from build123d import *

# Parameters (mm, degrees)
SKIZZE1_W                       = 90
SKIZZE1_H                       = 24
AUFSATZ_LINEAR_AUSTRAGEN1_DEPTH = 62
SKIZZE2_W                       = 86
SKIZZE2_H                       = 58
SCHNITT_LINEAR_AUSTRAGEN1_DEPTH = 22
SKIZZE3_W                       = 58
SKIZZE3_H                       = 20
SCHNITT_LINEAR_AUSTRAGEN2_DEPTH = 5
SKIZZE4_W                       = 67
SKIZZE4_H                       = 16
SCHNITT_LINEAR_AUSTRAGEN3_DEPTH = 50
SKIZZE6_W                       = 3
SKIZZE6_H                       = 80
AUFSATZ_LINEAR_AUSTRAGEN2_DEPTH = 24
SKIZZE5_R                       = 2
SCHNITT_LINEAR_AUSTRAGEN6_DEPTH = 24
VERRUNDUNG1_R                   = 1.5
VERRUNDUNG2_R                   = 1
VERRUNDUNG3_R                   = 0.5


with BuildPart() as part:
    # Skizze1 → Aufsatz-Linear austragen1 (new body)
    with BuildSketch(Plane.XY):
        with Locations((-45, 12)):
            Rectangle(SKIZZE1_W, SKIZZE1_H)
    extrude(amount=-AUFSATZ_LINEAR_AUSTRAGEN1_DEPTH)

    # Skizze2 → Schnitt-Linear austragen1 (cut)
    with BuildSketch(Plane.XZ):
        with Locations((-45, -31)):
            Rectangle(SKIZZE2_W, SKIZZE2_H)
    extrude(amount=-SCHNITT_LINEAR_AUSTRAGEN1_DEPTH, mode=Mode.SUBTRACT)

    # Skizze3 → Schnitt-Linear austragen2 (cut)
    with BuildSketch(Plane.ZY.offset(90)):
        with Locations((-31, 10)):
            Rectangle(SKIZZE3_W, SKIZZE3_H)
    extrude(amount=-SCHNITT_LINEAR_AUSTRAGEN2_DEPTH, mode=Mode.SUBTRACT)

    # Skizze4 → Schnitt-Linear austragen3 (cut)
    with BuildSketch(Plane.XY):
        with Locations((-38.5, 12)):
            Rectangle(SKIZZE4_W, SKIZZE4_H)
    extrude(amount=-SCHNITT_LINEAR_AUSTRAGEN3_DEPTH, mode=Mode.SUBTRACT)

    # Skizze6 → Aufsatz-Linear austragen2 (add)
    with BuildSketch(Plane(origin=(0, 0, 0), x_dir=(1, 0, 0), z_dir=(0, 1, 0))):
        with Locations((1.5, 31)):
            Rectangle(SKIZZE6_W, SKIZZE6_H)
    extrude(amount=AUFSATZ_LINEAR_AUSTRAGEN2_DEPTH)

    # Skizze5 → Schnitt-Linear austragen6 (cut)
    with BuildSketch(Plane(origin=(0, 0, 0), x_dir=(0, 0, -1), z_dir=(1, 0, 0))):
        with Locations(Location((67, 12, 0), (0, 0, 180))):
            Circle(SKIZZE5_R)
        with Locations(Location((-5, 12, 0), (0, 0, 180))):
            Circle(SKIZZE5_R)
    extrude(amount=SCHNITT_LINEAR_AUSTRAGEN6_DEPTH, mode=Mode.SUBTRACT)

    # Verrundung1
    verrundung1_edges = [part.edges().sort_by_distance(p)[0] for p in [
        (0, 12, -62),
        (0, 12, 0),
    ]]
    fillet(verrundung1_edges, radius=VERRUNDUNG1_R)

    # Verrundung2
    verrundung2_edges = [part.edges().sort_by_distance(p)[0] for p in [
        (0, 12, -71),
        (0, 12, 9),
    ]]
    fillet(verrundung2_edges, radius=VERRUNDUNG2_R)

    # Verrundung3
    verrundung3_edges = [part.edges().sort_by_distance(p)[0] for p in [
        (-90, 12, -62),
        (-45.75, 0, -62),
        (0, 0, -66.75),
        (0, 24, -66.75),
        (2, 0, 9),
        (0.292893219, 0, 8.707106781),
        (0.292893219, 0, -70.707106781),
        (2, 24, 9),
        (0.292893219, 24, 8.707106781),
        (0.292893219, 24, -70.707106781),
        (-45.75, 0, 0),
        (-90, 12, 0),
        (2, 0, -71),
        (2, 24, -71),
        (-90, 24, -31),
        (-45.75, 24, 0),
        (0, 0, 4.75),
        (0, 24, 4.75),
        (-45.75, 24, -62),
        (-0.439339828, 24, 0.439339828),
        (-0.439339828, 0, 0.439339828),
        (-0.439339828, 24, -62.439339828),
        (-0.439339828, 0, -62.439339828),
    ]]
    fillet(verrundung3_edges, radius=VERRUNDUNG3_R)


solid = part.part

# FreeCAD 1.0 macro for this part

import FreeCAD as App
import Part
import Sketcher


def edges_at(feature, points):
    """Names of the edges that pass closest to the given points."""
    edges = feature.Shape.Edges
    near = lambda p: min(range(len(edges)), key=lambda i: edges[i].distToShape(Part.Vertex(*p))[0])
    return sorted({f"Edge{near(p) + 1}" for p in points})

doc = App.newDocument("Part")
body = doc.addObject("PartDesign::Body", "Body")

sketch1 = doc.addObject("Sketcher::SketchObject", "Sketch")
body.addObject(sketch1)
sketch1.AttachmentSupport = (doc.XY_Plane, [""])
sketch1.MapMode = "FlatFace"
sketch1.addGeometry(Part.LineSegment(App.Vector(-90, 24, 0), App.Vector(-90, 0, 0)), False)
sketch1.addGeometry(Part.LineSegment(App.Vector(-90, 0, 0), App.Vector(0, 0, 0)), False)
sketch1.addGeometry(Part.LineSegment(App.Vector(0, 0, 0), App.Vector(0, 24, 0)), False)
sketch1.addGeometry(Part.LineSegment(App.Vector(0, 24, 0), App.Vector(-90, 24, 0)), False)
sketch1.addConstraint(Sketcher.Constraint("Coincident", 0, 2, 1, 1))
sketch1.addConstraint(Sketcher.Constraint("Coincident", 1, 2, 2, 1))
sketch1.addConstraint(Sketcher.Constraint("Coincident", 2, 2, 3, 1))
sketch1.addConstraint(Sketcher.Constraint("Coincident", 3, 2, 0, 1))
sketch1.addConstraint(Sketcher.Constraint("Vertical", 0))
sketch1.addConstraint(Sketcher.Constraint("Horizontal", 1))
sketch1.addConstraint(Sketcher.Constraint("Vertical", 2))
sketch1.addConstraint(Sketcher.Constraint("Horizontal", 3))
sketch1.addConstraint(Sketcher.Constraint("Coincident", 1, 2, -1, 1))
sketch1.addConstraint(Sketcher.Constraint("DistanceX", 1, 1, 1, 2, 90.0))
sketch1.addConstraint(Sketcher.Constraint("DistanceY", 0, 2, 0, 1, 24.0))
pad1 = doc.addObject("PartDesign::Pad", "Pad")
body.addObject(pad1)
pad1.Profile = sketch1
pad1.Length = 62
pad1.Reversed = True

sketch2 = doc.addObject("Sketcher::SketchObject", "Sketch001")
body.addObject(sketch2)
sketch2.AttachmentSupport = (doc.XZ_Plane, [""])
sketch2.MapMode = "FlatFace"
sketch2.addGeometry(Part.LineSegment(App.Vector(-88, -2, 0), App.Vector(-88, -60, 0)), False)
sketch2.addGeometry(Part.LineSegment(App.Vector(-88, -60, 0), App.Vector(-2, -60, 0)), False)
sketch2.addGeometry(Part.LineSegment(App.Vector(-2, -60, 0), App.Vector(-2, -2, 0)), False)
sketch2.addGeometry(Part.LineSegment(App.Vector(-2, -2, 0), App.Vector(-88, -2, 0)), False)
sketch2.addConstraint(Sketcher.Constraint("Coincident", 0, 2, 1, 1))
sketch2.addConstraint(Sketcher.Constraint("Coincident", 1, 2, 2, 1))
sketch2.addConstraint(Sketcher.Constraint("Coincident", 2, 2, 3, 1))
sketch2.addConstraint(Sketcher.Constraint("Coincident", 3, 2, 0, 1))
sketch2.addConstraint(Sketcher.Constraint("Vertical", 0))
sketch2.addConstraint(Sketcher.Constraint("Horizontal", 1))
sketch2.addConstraint(Sketcher.Constraint("Vertical", 2))
sketch2.addConstraint(Sketcher.Constraint("Horizontal", 3))
sketch2.addConstraint(Sketcher.Constraint("DistanceX", 1, 1, 1, 2, 86.0))
sketch2.addConstraint(Sketcher.Constraint("DistanceY", 0, 2, 0, 1, 58.0))
sketch2.addConstraint(Sketcher.Constraint("DistanceX", 0, 2, -1, 1, 88.0))
sketch2.addConstraint(Sketcher.Constraint("DistanceY", 0, 2, -1, 1, 60.0))
pocket1 = doc.addObject("PartDesign::Pocket", "Pocket")
body.addObject(pocket1)
pocket1.Profile = sketch2
pocket1.Length = 22

sketch3 = doc.addObject("Sketcher::SketchObject", "Sketch002")
body.addObject(sketch3)
sketch3.AttachmentSupport = (doc.YZ_Plane, [""])
sketch3.MapMode = "FlatFace"
sketch3.AttachmentOffset = App.Placement(App.Vector(0, 0, -90), App.Rotation())
sketch3.addGeometry(Part.LineSegment(App.Vector(20, -60, 0), App.Vector(0, -60, 0)), False)
sketch3.addGeometry(Part.LineSegment(App.Vector(0, -60, 0), App.Vector(0, -2, 0)), False)
sketch3.addGeometry(Part.LineSegment(App.Vector(0, -2, 0), App.Vector(20, -2, 0)), False)
sketch3.addGeometry(Part.LineSegment(App.Vector(20, -2, 0), App.Vector(20, -60, 0)), False)
sketch3.addConstraint(Sketcher.Constraint("Coincident", 0, 2, 1, 1))
sketch3.addConstraint(Sketcher.Constraint("Coincident", 1, 2, 2, 1))
sketch3.addConstraint(Sketcher.Constraint("Coincident", 2, 2, 3, 1))
sketch3.addConstraint(Sketcher.Constraint("Coincident", 3, 2, 0, 1))
sketch3.addConstraint(Sketcher.Constraint("Horizontal", 0))
sketch3.addConstraint(Sketcher.Constraint("Vertical", 1))
sketch3.addConstraint(Sketcher.Constraint("Horizontal", 2))
sketch3.addConstraint(Sketcher.Constraint("Vertical", 3))
sketch3.addConstraint(Sketcher.Constraint("PointOnObject", 0, 2, -2))
sketch3.addConstraint(Sketcher.Constraint("DistanceX", 0, 2, 0, 1, 20.0))
sketch3.addConstraint(Sketcher.Constraint("DistanceY", 1, 1, 1, 2, 58.0))
sketch3.addConstraint(Sketcher.Constraint("DistanceY", 0, 2, -1, 1, 60.0))
pocket2 = doc.addObject("PartDesign::Pocket", "Pocket001")
body.addObject(pocket2)
pocket2.Profile = sketch3
pocket2.Length = 5
pocket2.Reversed = True

sketch4 = doc.addObject("Sketcher::SketchObject", "Sketch003")
body.addObject(sketch4)
sketch4.AttachmentSupport = (doc.XY_Plane, [""])
sketch4.MapMode = "FlatFace"
sketch4.addGeometry(Part.LineSegment(App.Vector(-72, 20, 0), App.Vector(-72, 4, 0)), False)
sketch4.addGeometry(Part.LineSegment(App.Vector(-72, 4, 0), App.Vector(-5, 4, 0)), False)
sketch4.addGeometry(Part.LineSegment(App.Vector(-5, 4, 0), App.Vector(-5, 20, 0)), False)
sketch4.addGeometry(Part.LineSegment(App.Vector(-5, 20, 0), App.Vector(-72, 20, 0)), False)
sketch4.addConstraint(Sketcher.Constraint("Coincident", 0, 2, 1, 1))
sketch4.addConstraint(Sketcher.Constraint("Coincident", 1, 2, 2, 1))
sketch4.addConstraint(Sketcher.Constraint("Coincident", 2, 2, 3, 1))
sketch4.addConstraint(Sketcher.Constraint("Coincident", 3, 2, 0, 1))
sketch4.addConstraint(Sketcher.Constraint("Vertical", 0))
sketch4.addConstraint(Sketcher.Constraint("Horizontal", 1))
sketch4.addConstraint(Sketcher.Constraint("Vertical", 2))
sketch4.addConstraint(Sketcher.Constraint("Horizontal", 3))
sketch4.addConstraint(Sketcher.Constraint("DistanceX", 1, 1, 1, 2, 67.0))
sketch4.addConstraint(Sketcher.Constraint("DistanceY", 0, 2, 0, 1, 16.0))
sketch4.addConstraint(Sketcher.Constraint("DistanceX", 0, 2, -1, 1, 72.0))
sketch4.addConstraint(Sketcher.Constraint("DistanceY", -1, 1, 0, 2, 4.0))
pocket3 = doc.addObject("PartDesign::Pocket", "Pocket002")
body.addObject(pocket3)
pocket3.Profile = sketch4
pocket3.Length = 50

sketch5 = doc.addObject("Sketcher::SketchObject", "Sketch004")
body.addObject(sketch5)
sketch5.AttachmentSupport = (doc.XZ_Plane, [""])
sketch5.MapMode = "FlatFace"
sketch5.addGeometry(Part.LineSegment(App.Vector(0, -71, 0), App.Vector(0, 9, 0)), False)
sketch5.addGeometry(Part.LineSegment(App.Vector(0, 9, 0), App.Vector(3, 9, 0)), False)
sketch5.addGeometry(Part.LineSegment(App.Vector(3, 9, 0), App.Vector(3, -71, 0)), False)
sketch5.addGeometry(Part.LineSegment(App.Vector(3, -71, 0), App.Vector(0, -71, 0)), False)
sketch5.addConstraint(Sketcher.Constraint("Coincident", 0, 2, 1, 1))
sketch5.addConstraint(Sketcher.Constraint("Coincident", 1, 2, 2, 1))
sketch5.addConstraint(Sketcher.Constraint("Coincident", 2, 2, 3, 1))
sketch5.addConstraint(Sketcher.Constraint("Coincident", 3, 2, 0, 1))
sketch5.addConstraint(Sketcher.Constraint("Vertical", 0))
sketch5.addConstraint(Sketcher.Constraint("Horizontal", 1))
sketch5.addConstraint(Sketcher.Constraint("Vertical", 2))
sketch5.addConstraint(Sketcher.Constraint("Horizontal", 3))
sketch5.addConstraint(Sketcher.Constraint("PointOnObject", 0, 2, -2))
sketch5.addConstraint(Sketcher.Constraint("DistanceX", 1, 1, 1, 2, 3.0))
sketch5.addConstraint(Sketcher.Constraint("DistanceY", 0, 1, 0, 2, 80.0))
sketch5.addConstraint(Sketcher.Constraint("DistanceY", -1, 1, 0, 2, 9.0))
pad2 = doc.addObject("PartDesign::Pad", "Pad001")
body.addObject(pad2)
pad2.Profile = sketch5
pad2.Length = 24
pad2.Reversed = True

sketch6 = doc.addObject("Sketcher::SketchObject", "Sketch005")
body.addObject(sketch6)
sketch6.AttachmentSupport = (doc.YZ_Plane, [""])
sketch6.MapMode = "FlatFace"
sketch6.addGeometry(Part.Circle(App.Vector(12, -67, 0), App.Vector(0, 0, 1), 2), False)
sketch6.addGeometry(Part.Circle(App.Vector(12, 5, 0), App.Vector(0, 0, 1), 2), False)
sketch6.addConstraint(Sketcher.Constraint("Equal", 0, 1))
sketch6.addConstraint(Sketcher.Constraint("Vertical", 0, 3, 1, 3))
sketch6.addConstraint(Sketcher.Constraint("Diameter", 0, 4.0))
sketch6.addConstraint(Sketcher.Constraint("DistanceX", -1, 1, 0, 3, 12.0))
sketch6.addConstraint(Sketcher.Constraint("DistanceY", 0, 3, -1, 1, 67.0))
sketch6.addConstraint(Sketcher.Constraint("DistanceY", -1, 1, 1, 3, 5.0))
pocket4 = doc.addObject("PartDesign::Pocket", "Pocket003")
body.addObject(pocket4)
pocket4.Profile = sketch6
pocket4.Length = 24
pocket4.Reversed = True
doc.recompute()

fillet = doc.addObject("PartDesign::Fillet", "Fillet")
body.addObject(fillet)
fillet.Base = (pocket4, edges_at(pocket4, [(0, 12, -62), (0, 12, 0)]))
fillet.Radius = 1.5
doc.recompute()

fillet2 = doc.addObject("PartDesign::Fillet", "Fillet001")
body.addObject(fillet2)
fillet2.Base = (fillet, edges_at(fillet, [(0, 12, -71), (0, 12, 9)]))
fillet2.Radius = 1
doc.recompute()

fillet3 = doc.addObject("PartDesign::Fillet", "Fillet002")
body.addObject(fillet3)
fillet3.Base = (fillet2, edges_at(fillet2, [
    (-90, 12, -62),
    (-45.75, 0, -62),
    (0, 0, -66.75),
    (0, 24, -66.75),
    (2, 0, 9),
    (0.293, 0, 8.707),
    (0.293, 0, -70.707),
    (2, 24, 9),
    (0.293, 24, 8.707),
    (0.293, 24, -70.707),
    (-45.75, 0, 0),
    (-90, 12, 0),
    (2, 0, -71),
    (2, 24, -71),
    (-90, 24, -31),
    (-45.75, 24, 0),
    (0, 0, 4.75),
    (0, 24, 4.75),
    (-45.75, 24, -62),
    (-0.439, 24, 0.439),
    (-0.439, 0, 0.439),
    (-0.439, 24, -62.439),
    (-0.439, 0, -62.439),
]))
fillet3.Radius = 0.5

doc.recompute()
